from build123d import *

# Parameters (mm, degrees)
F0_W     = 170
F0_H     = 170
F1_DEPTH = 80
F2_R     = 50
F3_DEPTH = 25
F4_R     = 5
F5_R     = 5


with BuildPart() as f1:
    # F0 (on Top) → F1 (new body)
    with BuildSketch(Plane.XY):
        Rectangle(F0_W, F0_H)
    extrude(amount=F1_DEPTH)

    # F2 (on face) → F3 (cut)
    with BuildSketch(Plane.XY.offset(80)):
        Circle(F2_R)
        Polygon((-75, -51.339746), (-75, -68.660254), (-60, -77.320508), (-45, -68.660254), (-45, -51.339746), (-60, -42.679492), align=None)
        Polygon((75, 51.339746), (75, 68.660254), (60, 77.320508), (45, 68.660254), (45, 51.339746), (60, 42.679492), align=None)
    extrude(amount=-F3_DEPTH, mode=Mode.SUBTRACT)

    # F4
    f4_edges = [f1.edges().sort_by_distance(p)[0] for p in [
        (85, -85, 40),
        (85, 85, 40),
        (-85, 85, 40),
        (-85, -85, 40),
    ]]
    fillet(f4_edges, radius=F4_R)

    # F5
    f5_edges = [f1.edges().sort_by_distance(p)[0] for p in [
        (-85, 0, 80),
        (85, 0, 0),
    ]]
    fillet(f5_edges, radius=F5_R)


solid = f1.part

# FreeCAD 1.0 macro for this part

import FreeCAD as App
import Part
import Sketcher

V = App.Vector
Q = App.Units.Quantity


def edges_at(feature, points):
    """Names of the edges that pass closest to the given points."""
    edges = feature.Shape.Edges
    near = lambda p: min(range(len(edges)), key=lambda i: edges[i].distToShape(Part.Vertex(*p))[0])
    return sorted({f"Edge{near(p) + 1}" for p in points})


def add_polygon(sketch, points):
    """Adds a closed chain of lines whose ends are joined by coincident constraints."""
    first, n = sketch.GeometryCount, len(points)
    for a, b in zip(points, points[1:] + points[:1]):
        sketch.addGeometry(Part.LineSegment(App.Vector(*a, 0), App.Vector(*b, 0)), False)
    for i in range(n):
        sketch.addConstraint(Sketcher.Constraint("Coincident", first + i, 2, first + (i + 1) % n, 1))

doc = App.newDocument("Part")
params = doc.addObject("Spreadsheet::Sheet", "Params")
for row, (alias, value) in enumerate([
    ("sketch1_width", "170 mm"),
    ("pad1_length", "80 mm"),
    ("sketch2_diameter", "100 mm"),
    ("pocket1_length", "25 mm"),
    ("fillet_radius", "5 mm"),
    ("fillet2_radius", "5 mm"),
], start=1):
    params.set(f"A{row}", alias)
    params.set(f"B{row}", "=" + value)
    params.setAlias(f"B{row}", alias)

body = doc.addObject("PartDesign::Body", "Body")

sketch1 = body.newObject("Sketcher::SketchObject", "Sketch")
sketch1.AttachmentSupport = (doc.getObject("XY_Plane"), [""])
sketch1.MapMode = "FlatFace"
add_polygon(sketch1, [(-85, 85), (-85, -85), (85, -85), (85, 85)])
sketch1.addConstraint([
    Sketcher.Constraint("Vertical", 0),
    Sketcher.Constraint("Horizontal", 1),
    Sketcher.Constraint("Vertical", 2),
    Sketcher.Constraint("Horizontal", 3),
    Sketcher.Constraint("Symmetric", 0, 2, 2, 2, -1, 1),
    Sketcher.Constraint("Equal", 3, 0),
    Sketcher.Constraint("DistanceX", 1, 1, 1, 2, Q("170 mm")),
])
sketch1.setExpression("Constraints[10]", "Params.sketch1_width")
pad1 = body.newObject("PartDesign::Pad", "Pad")
pad1.Profile = sketch1
pad1.setExpression("Length", "Params.pad1_length")

sketch2 = body.newObject("Sketcher::SketchObject", "Sketch001")
sketch2.AttachmentSupport = (doc.getObject("XY_Plane"), [""])
sketch2.MapMode = "FlatFace"
sketch2.AttachmentOffset = App.Placement(V(0, 0, 80), App.Rotation())
sketch2.addGeometry(Part.Circle(V(0, 0, 0), V(0, 0, 1), 50), False)
add_polygon(sketch2, [(-75, -51), (-75, -69), (-60, -77), (-45, -69), (-45, -51), (-60, -43)])
add_polygon(sketch2, [(75, 51), (75, 69), (60, 77), (45, 69), (45, 51), (60, 43)])
sketch2.addConstraint([
    Sketcher.Constraint("Vertical", 1),
    Sketcher.Constraint("Vertical", 4),
    Sketcher.Constraint("Vertical", 7),
    Sketcher.Constraint("Vertical", 10),
    Sketcher.Constraint("Coincident", 0, 3, -1, 1),
    Sketcher.Constraint("Symmetric", 1, 2, 7, 2, -1, 1),
    Sketcher.Constraint("Symmetric", 2, 2, 8, 2, -1, 1),
    Sketcher.Constraint("Symmetric", 3, 2, 9, 2, -1, 1),
    Sketcher.Constraint("Symmetric", 5, 2, 11, 2, -1, 1),
    Sketcher.Constraint("Parallel", 2, 5),
    Sketcher.Constraint("Parallel", 3, 6),
    Sketcher.Constraint("Parallel", 8, 11),
    Sketcher.Constraint("Parallel", 9, 12),
    Sketcher.Constraint("Horizontal", 1, 2, 3, 2),
    Sketcher.Constraint("Horizontal", 4, 2, 6, 2),
    Sketcher.Constraint("Vertical", 2, 2, 5, 2),
    Sketcher.Constraint("Diameter", 0, Q("100 mm")),
    Sketcher.Constraint("Angle", 2, Q("-30 deg")),
    Sketcher.Constraint("DistanceX", 1, 2, -1, 1, Q("75 mm")),
    Sketcher.Constraint("DistanceX", 2, 2, -1, 1, Q("60 mm")),
    Sketcher.Constraint("DistanceY", 4, 2, 7, 2, Q("120 mm")),
    Sketcher.Constraint("DistanceY", 1, 2, 1, 1, Q("17.320508 mm")),
])
sketch2.setExpression("Constraints[28]", "Params.sketch2_diameter")
pocket1 = body.newObject("PartDesign::Pocket", "Pocket")
pocket1.Profile = sketch2
pocket1.setExpression("Length", "Params.pocket1_length")
doc.recompute()

fillet = body.newObject("PartDesign::Fillet", "Fillet")
fillet.Base = (pocket1, edges_at(pocket1, [
    (85, -85, 40),
    (85, 85, 40),
    (-85, 85, 40),
    (-85, -85, 40),
]))
fillet.setExpression("Radius", "Params.fillet_radius")
doc.recompute()

fillet2 = body.newObject("PartDesign::Fillet", "Fillet001")
fillet2.Base = (fillet, edges_at(fillet, [(-85, 0, 80), (85, 0, 0)]))
fillet2.setExpression("Radius", "Params.fillet2_radius")

doc.recompute()
